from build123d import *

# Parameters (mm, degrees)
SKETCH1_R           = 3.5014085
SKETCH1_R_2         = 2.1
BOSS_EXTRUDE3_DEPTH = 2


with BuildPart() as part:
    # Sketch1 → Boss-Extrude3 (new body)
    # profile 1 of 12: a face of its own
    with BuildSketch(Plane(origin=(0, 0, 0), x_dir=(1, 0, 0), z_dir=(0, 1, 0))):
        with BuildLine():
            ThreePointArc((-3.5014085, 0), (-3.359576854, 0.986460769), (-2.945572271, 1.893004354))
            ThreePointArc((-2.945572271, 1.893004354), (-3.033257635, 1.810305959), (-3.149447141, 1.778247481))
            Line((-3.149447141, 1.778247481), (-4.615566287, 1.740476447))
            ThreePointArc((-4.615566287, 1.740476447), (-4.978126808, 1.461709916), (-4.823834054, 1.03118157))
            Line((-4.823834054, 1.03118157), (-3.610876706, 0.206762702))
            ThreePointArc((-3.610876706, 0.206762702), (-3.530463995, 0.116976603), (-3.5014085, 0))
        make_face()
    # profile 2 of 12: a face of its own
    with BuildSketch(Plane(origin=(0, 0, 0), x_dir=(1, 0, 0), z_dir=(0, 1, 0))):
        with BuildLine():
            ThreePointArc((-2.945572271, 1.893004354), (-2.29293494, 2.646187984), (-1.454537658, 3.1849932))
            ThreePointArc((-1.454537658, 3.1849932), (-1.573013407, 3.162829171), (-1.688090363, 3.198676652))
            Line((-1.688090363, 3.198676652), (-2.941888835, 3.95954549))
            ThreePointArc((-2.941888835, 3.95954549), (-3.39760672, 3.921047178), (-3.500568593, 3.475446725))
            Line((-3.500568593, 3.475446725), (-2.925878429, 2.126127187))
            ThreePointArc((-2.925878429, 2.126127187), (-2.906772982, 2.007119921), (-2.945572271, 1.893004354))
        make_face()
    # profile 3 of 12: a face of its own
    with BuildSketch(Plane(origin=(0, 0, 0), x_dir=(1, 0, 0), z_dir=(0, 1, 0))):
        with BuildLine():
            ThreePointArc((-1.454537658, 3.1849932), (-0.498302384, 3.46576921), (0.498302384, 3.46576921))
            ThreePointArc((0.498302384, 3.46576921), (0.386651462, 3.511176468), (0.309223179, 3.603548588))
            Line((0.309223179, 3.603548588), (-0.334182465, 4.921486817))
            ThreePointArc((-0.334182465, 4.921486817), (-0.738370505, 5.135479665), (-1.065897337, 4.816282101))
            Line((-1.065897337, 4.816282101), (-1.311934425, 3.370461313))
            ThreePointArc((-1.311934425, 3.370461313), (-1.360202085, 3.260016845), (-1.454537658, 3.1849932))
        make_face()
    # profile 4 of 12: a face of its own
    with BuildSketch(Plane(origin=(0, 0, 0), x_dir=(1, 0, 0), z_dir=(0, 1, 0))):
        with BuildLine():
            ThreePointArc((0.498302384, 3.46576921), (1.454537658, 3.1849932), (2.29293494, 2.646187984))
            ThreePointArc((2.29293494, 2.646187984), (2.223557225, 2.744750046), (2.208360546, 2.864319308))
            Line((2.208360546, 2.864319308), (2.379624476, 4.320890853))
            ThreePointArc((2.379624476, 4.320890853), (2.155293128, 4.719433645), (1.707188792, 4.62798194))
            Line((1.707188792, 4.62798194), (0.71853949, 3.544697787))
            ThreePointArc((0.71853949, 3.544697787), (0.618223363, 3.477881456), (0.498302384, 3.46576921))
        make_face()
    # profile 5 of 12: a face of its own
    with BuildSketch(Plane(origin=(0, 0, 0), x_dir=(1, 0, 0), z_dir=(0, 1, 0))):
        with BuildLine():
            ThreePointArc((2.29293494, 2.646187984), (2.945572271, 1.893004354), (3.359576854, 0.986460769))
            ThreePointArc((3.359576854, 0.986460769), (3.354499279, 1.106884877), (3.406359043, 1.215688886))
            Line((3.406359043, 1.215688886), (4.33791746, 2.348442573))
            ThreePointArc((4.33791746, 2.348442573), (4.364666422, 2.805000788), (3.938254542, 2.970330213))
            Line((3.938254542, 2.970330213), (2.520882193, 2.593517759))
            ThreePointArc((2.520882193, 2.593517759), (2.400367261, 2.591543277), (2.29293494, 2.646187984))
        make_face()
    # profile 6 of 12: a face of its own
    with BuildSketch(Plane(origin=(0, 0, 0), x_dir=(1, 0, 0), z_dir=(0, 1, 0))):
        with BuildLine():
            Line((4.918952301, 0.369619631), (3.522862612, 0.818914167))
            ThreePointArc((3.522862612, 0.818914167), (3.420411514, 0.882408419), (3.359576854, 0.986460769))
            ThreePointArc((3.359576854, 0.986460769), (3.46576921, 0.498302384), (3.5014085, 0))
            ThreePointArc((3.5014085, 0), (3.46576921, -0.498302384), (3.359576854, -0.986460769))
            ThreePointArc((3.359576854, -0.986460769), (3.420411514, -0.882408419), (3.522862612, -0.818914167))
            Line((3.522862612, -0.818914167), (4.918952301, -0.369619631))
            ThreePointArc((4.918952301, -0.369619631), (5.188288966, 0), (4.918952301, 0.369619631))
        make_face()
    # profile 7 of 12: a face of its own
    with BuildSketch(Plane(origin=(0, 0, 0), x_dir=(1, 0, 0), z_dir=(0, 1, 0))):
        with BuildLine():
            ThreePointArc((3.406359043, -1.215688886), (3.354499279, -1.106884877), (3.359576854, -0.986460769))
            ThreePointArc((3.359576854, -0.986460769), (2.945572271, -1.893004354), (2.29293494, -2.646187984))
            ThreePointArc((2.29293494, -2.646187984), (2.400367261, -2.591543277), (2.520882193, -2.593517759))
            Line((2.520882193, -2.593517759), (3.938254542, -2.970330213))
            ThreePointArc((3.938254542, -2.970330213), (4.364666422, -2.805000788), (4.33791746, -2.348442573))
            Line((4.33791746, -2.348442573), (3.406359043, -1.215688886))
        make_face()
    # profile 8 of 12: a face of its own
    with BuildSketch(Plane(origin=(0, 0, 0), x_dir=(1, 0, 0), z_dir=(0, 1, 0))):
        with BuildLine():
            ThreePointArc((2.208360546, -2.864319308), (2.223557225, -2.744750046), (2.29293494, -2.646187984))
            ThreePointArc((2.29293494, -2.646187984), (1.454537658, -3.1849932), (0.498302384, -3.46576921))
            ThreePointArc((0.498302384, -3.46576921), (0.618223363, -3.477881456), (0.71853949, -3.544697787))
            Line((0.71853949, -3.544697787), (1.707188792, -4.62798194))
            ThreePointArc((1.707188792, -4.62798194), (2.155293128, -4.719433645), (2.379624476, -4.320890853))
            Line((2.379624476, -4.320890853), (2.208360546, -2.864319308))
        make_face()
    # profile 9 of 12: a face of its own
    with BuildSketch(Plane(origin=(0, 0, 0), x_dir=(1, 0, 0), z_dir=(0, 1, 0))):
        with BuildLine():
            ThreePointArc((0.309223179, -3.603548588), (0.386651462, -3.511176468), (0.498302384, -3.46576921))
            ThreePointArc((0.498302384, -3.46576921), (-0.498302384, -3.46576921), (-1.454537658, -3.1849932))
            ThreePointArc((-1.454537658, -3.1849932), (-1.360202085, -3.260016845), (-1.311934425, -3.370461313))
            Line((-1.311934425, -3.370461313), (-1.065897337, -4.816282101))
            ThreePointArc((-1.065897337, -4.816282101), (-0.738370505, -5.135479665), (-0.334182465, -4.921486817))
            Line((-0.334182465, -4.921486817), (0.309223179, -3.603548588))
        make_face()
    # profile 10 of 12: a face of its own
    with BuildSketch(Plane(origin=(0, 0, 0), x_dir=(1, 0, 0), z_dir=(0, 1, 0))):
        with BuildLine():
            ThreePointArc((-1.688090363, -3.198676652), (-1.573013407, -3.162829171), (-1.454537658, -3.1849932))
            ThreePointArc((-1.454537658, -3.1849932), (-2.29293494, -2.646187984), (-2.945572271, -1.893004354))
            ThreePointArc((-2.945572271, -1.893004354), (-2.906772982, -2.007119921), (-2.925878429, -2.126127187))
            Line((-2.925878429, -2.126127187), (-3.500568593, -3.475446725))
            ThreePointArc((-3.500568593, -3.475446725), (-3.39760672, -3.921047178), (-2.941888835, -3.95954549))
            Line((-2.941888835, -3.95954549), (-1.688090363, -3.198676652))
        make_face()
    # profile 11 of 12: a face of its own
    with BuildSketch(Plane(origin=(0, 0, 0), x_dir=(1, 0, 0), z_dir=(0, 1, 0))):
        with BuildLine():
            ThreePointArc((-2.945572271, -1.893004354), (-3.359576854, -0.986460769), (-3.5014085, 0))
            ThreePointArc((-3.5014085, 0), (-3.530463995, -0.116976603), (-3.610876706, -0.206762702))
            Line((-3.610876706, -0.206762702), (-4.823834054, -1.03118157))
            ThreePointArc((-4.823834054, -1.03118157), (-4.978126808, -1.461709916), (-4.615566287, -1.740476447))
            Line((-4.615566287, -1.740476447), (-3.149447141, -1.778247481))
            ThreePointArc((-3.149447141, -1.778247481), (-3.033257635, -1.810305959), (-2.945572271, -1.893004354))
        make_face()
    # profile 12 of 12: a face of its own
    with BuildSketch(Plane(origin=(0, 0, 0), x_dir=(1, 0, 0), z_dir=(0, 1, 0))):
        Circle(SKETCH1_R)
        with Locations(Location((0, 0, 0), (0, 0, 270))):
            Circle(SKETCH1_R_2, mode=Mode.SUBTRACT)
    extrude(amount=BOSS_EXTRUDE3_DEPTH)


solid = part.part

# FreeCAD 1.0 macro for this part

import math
import FreeCAD as App
import Part
import Sketcher

V = App.Vector
Q = App.Units.Quantity

doc = App.newDocument("Part")
params = doc.addObject("Spreadsheet::Sheet", "Params")
for row, (alias, value) in enumerate([
    ("sketch1_diameter", "4.2 mm"),
    ("sketch1_radius", "0.25 mm"),
    ("pad1_length", "2 mm"),
], start=1):
    params.set(f"A{row}", alias)
    params.set(f"B{row}", "=" + value)
    params.setAlias(f"B{row}", alias)

body = doc.addObject("PartDesign::Body", "Body")

# Sketch on XZ plane
sketch1 = body.newObject("Sketcher::SketchObject", "Sketch")
sketch1.AttachmentSupport = (doc.getObject("XZ_Plane"), [""])
sketch1.MapMode = "FlatFace"
sketch1.addGeometry(Part.ArcOfCircle(Part.Circle(V(-3.16, -2.03, 0), V(0, 0, 1), 0.25), math.radians(33), math.radians(89)), False)
sketch1.addGeometry(Part.LineSegment(V(-3.15, -1.78, 0), V(-4.62, -1.74, 0)), False)
sketch1.addGeometry(Part.ArcOfCircle(Part.Circle(V(-4.61, -1.35, 0), V(0, 0, 1), 0.39), math.radians(124), math.radians(269)), False)
sketch1.addGeometry(Part.LineSegment(V(-4.82, -1.03, 0), V(-3.61, -0.21, 0)), False)
sketch1.addGeometry(Part.ArcOfCircle(Part.Circle(V(-3.75, 0, 0), V(0, 0, 1), 0.25), math.radians(-56), math.radians(0)), False)
sketch1.addGeometry(Part.ArcOfCircle(Part.Circle(V(-3.75, 0, 0), V(0, 0, 1), 0.25), math.radians(0), math.radians(56)), False)
sketch1.addGeometry(Part.LineSegment(V(-3.61, 0.21, 0), V(-4.82, 1.03, 0)), False)
sketch1.addGeometry(Part.ArcOfCircle(Part.Circle(V(-4.61, 1.35, 0), V(0, 0, 1), 0.39), math.radians(91), math.radians(236)), False)
sketch1.addGeometry(Part.LineSegment(V(-4.62, 1.74, 0), V(-3.15, 1.78, 0)), False)
sketch1.addGeometry(Part.ArcOfCircle(Part.Circle(V(-3.16, 2.03, 0), V(0, 0, 1), 0.25), math.radians(-89), math.radians(-33)), False)
sketch1.addGeometry(Part.ArcOfCircle(Part.Circle(V(-3.16, 2.03, 0), V(0, 0, 1), 0.25), math.radians(-33), math.radians(23)), False)
sketch1.addGeometry(Part.LineSegment(V(-2.93, 2.13, 0), V(-3.5, 3.48, 0)), False)
sketch1.addGeometry(Part.ArcOfCircle(Part.Circle(V(-3.14, 3.63, 0), V(0, 0, 1), 0.39), math.radians(59), math.radians(203)), False)
sketch1.addGeometry(Part.LineSegment(V(-2.94, 3.96, 0), V(-1.69, 3.2, 0)), False)
sketch1.addGeometry(Part.ArcOfCircle(Part.Circle(V(-1.56, 3.41, 0), V(0, 0, 1), 0.25), math.radians(-121), math.radians(-65)), False)
sketch1.addGeometry(Part.ArcOfCircle(Part.Circle(V(-1.56, 3.41, 0), V(0, 0, 1), 0.25), math.radians(-65), math.radians(-10)), False)
sketch1.addGeometry(Part.LineSegment(V(-1.31, 3.37, 0), V(-1.07, 4.82, 0)), False)
sketch1.addGeometry(Part.ArcOfCircle(Part.Circle(V(-0.68, 4.75, 0), V(0, 0, 1), 0.39), math.radians(26), math.radians(170)), False)
sketch1.addGeometry(Part.LineSegment(V(-0.33, 4.92, 0), V(0.31, 3.6, 0)), False)
sketch1.addGeometry(Part.ArcOfCircle(Part.Circle(V(0.53, 3.71, 0), V(0, 0, 1), 0.25), math.radians(-154), math.radians(-98)), False)
sketch1.addGeometry(Part.ArcOfCircle(Part.Circle(V(0.53, 3.71, 0), V(0, 0, 1), 0.25), math.radians(-98), math.radians(-42)), False)
sketch1.addGeometry(Part.LineSegment(V(0.72, 3.54, 0), V(1.71, 4.63, 0)), False)
sketch1.addGeometry(Part.ArcOfCircle(Part.Circle(V(1.99, 4.37, 0), V(0, 0, 1), 0.39), math.radians(-7), math.radians(138)), False)
sketch1.addGeometry(Part.LineSegment(V(2.38, 4.32, 0), V(2.21, 2.86, 0)), False)
sketch1.addGeometry(Part.ArcOfCircle(Part.Circle(V(2.46, 2.84, 0), V(0, 0, 1), 0.25), math.radians(173), math.radians(229)), False)
sketch1.addGeometry(Part.ArcOfCircle(Part.Circle(V(2.46, 2.84, 0), V(0, 0, 1), 0.25), math.radians(-131), math.radians(-75)), False)
sketch1.addGeometry(Part.LineSegment(V(2.52, 2.59, 0), V(3.94, 2.97, 0)), False)
sketch1.addGeometry(Part.ArcOfCircle(Part.Circle(V(4.04, 2.6, 0), V(0, 0, 1), 0.39), math.radians(-39), math.radians(105)), False)
sketch1.addGeometry(Part.LineSegment(V(4.34, 2.35, 0), V(3.41, 1.22, 0)), False)
sketch1.addGeometry(Part.ArcOfCircle(Part.Circle(V(3.6, 1.06, 0), V(0, 0, 1), 0.25), math.radians(141), math.radians(196)), False)
sketch1.addGeometry(Part.ArcOfCircle(Part.Circle(V(3.6, 1.06, 0), V(0, 0, 1), 0.25), math.radians(-164), math.radians(-108)), False)
sketch1.addGeometry(Part.LineSegment(V(3.52, 0.82, 0), V(4.92, 0.37, 0)), False)
sketch1.addGeometry(Part.ArcOfCircle(Part.Circle(V(4.8, 0, 0), V(0, 0, 1), 0.39), math.radians(-72), math.radians(72)), False)
sketch1.addGeometry(Part.LineSegment(V(4.92, -0.37, 0), V(3.52, -0.82, 0)), False)
sketch1.addGeometry(Part.ArcOfCircle(Part.Circle(V(3.6, -1.06, 0), V(0, 0, 1), 0.25), math.radians(108), math.radians(164)), False)
sketch1.addGeometry(Part.ArcOfCircle(Part.Circle(V(3.6, -1.06, 0), V(0, 0, 1), 0.25), math.radians(164), math.radians(219)), False)
sketch1.addGeometry(Part.LineSegment(V(3.41, -1.22, 0), V(4.34, -2.35, 0)), False)
sketch1.addGeometry(Part.ArcOfCircle(Part.Circle(V(4.04, -2.6, 0), V(0, 0, 1), 0.39), math.radians(-105), math.radians(39)), False)
sketch1.addGeometry(Part.LineSegment(V(3.94, -2.97, 0), V(2.52, -2.59, 0)), False)
sketch1.addGeometry(Part.ArcOfCircle(Part.Circle(V(2.46, -2.84, 0), V(0, 0, 1), 0.25), math.radians(75), math.radians(131)), False)
sketch1.addGeometry(Part.ArcOfCircle(Part.Circle(V(2.46, -2.84, 0), V(0, 0, 1), 0.25), math.radians(131), math.radians(187)), False)
sketch1.addGeometry(Part.LineSegment(V(2.21, -2.86, 0), V(2.38, -4.32, 0)), False)
sketch1.addGeometry(Part.ArcOfCircle(Part.Circle(V(1.99, -4.37, 0), V(0, 0, 1), 0.39), math.radians(-138), math.radians(7)), False)
sketch1.addGeometry(Part.LineSegment(V(1.71, -4.63, 0), V(0.72, -3.54, 0)), False)
sketch1.addGeometry(Part.ArcOfCircle(Part.Circle(V(0.53, -3.71, 0), V(0, 0, 1), 0.25), math.radians(42), math.radians(98)), False)
sketch1.addGeometry(Part.ArcOfCircle(Part.Circle(V(0.53, -3.71, 0), V(0, 0, 1), 0.25), math.radians(98), math.radians(154)), False)
sketch1.addGeometry(Part.LineSegment(V(0.31, -3.6, 0), V(-0.33, -4.92, 0)), False)
sketch1.addGeometry(Part.ArcOfCircle(Part.Circle(V(-0.68, -4.75, 0), V(0, 0, 1), 0.39), math.radians(-170), math.radians(-26)), False)
sketch1.addGeometry(Part.LineSegment(V(-1.07, -4.82, 0), V(-1.31, -3.37, 0)), False)
sketch1.addGeometry(Part.ArcOfCircle(Part.Circle(V(-1.56, -3.41, 0), V(0, 0, 1), 0.25), math.radians(10), math.radians(65)), False)
sketch1.addGeometry(Part.ArcOfCircle(Part.Circle(V(-1.56, -3.41, 0), V(0, 0, 1), 0.25), math.radians(65), math.radians(121)), False)
sketch1.addGeometry(Part.LineSegment(V(-1.69, -3.2, 0), V(-2.94, -3.96, 0)), False)
sketch1.addGeometry(Part.ArcOfCircle(Part.Circle(V(-3.14, -3.63, 0), V(0, 0, 1), 0.39), math.radians(157), math.radians(301)), False)
sketch1.addGeometry(Part.LineSegment(V(-3.5, -3.48, 0), V(-2.93, -2.13, 0)), False)
sketch1.addGeometry(Part.ArcOfCircle(Part.Circle(V(-3.16, -2.03, 0), V(0, 0, 1), 0.25), math.radians(-23), math.radians(33)), False)
sketch1.addGeometry(Part.Circle(V(0, 0, 0), V(0, 0, 1), 2.1), False)
sketch1.addConstraint(Sketcher.Constraint("Tangent", 0, 2, 1, 1))
sketch1.addConstraint(Sketcher.Constraint("Tangent", 1, 2, 2, 2))
sketch1.addConstraint(Sketcher.Constraint("Tangent", 2, 1, 3, 1))
sketch1.addConstraint(Sketcher.Constraint("Tangent", 3, 2, 4, 1))
sketch1.addConstraint(Sketcher.Constraint("Tangent", 4, 2, 5, 1))
sketch1.addConstraint(Sketcher.Constraint("Tangent", 5, 2, 6, 1))
sketch1.addConstraint(Sketcher.Constraint("Tangent", 6, 2, 7, 2))
sketch1.addConstraint(Sketcher.Constraint("Tangent", 7, 1, 8, 1))
sketch1.addConstraint(Sketcher.Constraint("Tangent", 8, 2, 9, 1))
sketch1.addConstraint(Sketcher.Constraint("Tangent", 9, 2, 10, 1))
sketch1.addConstraint(Sketcher.Constraint("Tangent", 10, 2, 11, 1))
sketch1.addConstraint(Sketcher.Constraint("Tangent", 11, 2, 12, 2))
sketch1.addConstraint(Sketcher.Constraint("Tangent", 12, 1, 13, 1))
sketch1.addConstraint(Sketcher.Constraint("Tangent", 13, 2, 14, 1))
sketch1.addConstraint(Sketcher.Constraint("Tangent", 14, 2, 15, 1))
sketch1.addConstraint(Sketcher.Constraint("Tangent", 15, 2, 16, 1))
sketch1.addConstraint(Sketcher.Constraint("Tangent", 16, 2, 17, 2))
sketch1.addConstraint(Sketcher.Constraint("Tangent", 17, 1, 18, 1))
sketch1.addConstraint(Sketcher.Constraint("Tangent", 18, 2, 19, 1))
sketch1.addConstraint(Sketcher.Constraint("Tangent", 19, 2, 20, 1))
sketch1.addConstraint(Sketcher.Constraint("Tangent", 20, 2, 21, 1))
sketch1.addConstraint(Sketcher.Constraint("Tangent", 21, 2, 22, 2))
sketch1.addConstraint(Sketcher.Constraint("Tangent", 22, 1, 23, 1))
sketch1.addConstraint(Sketcher.Constraint("Tangent", 23, 2, 24, 1))
sketch1.addConstraint(Sketcher.Constraint("Tangent", 24, 2, 25, 1))
sketch1.addConstraint(Sketcher.Constraint("Tangent", 25, 2, 26, 1))
sketch1.addConstraint(Sketcher.Constraint("Tangent", 26, 2, 27, 2))
sketch1.addConstraint(Sketcher.Constraint("Tangent", 27, 1, 28, 1))
sketch1.addConstraint(Sketcher.Constraint("Tangent", 28, 2, 29, 1))
sketch1.addConstraint(Sketcher.Constraint("Tangent", 29, 2, 30, 1))
sketch1.addConstraint(Sketcher.Constraint("Tangent", 30, 2, 31, 1))
sketch1.addConstraint(Sketcher.Constraint("Tangent", 31, 2, 32, 2))
sketch1.addConstraint(Sketcher.Constraint("Tangent", 32, 1, 33, 1))
sketch1.addConstraint(Sketcher.Constraint("Tangent", 33, 2, 34, 1))
sketch1.addConstraint(Sketcher.Constraint("Tangent", 34, 2, 35, 1))
sketch1.addConstraint(Sketcher.Constraint("Tangent", 35, 2, 36, 1))
sketch1.addConstraint(Sketcher.Constraint("Tangent", 36, 2, 37, 2))
sketch1.addConstraint(Sketcher.Constraint("Tangent", 37, 1, 38, 1))
sketch1.addConstraint(Sketcher.Constraint("Tangent", 38, 2, 39, 1))
sketch1.addConstraint(Sketcher.Constraint("Tangent", 39, 2, 40, 1))
sketch1.addConstraint(Sketcher.Constraint("Tangent", 40, 2, 41, 1))
sketch1.addConstraint(Sketcher.Constraint("Tangent", 41, 2, 42, 2))
sketch1.addConstraint(Sketcher.Constraint("Tangent", 42, 1, 43, 1))
sketch1.addConstraint(Sketcher.Constraint("Tangent", 43, 2, 44, 1))
sketch1.addConstraint(Sketcher.Constraint("Tangent", 44, 2, 45, 1))
sketch1.addConstraint(Sketcher.Constraint("Tangent", 45, 2, 46, 1))
sketch1.addConstraint(Sketcher.Constraint("Tangent", 46, 2, 47, 2))
sketch1.addConstraint(Sketcher.Constraint("Tangent", 47, 1, 48, 1))
sketch1.addConstraint(Sketcher.Constraint("Tangent", 48, 2, 49, 1))
sketch1.addConstraint(Sketcher.Constraint("Tangent", 49, 2, 50, 1))
sketch1.addConstraint(Sketcher.Constraint("Tangent", 50, 2, 51, 1))
sketch1.addConstraint(Sketcher.Constraint("Tangent", 51, 2, 52, 2))
sketch1.addConstraint(Sketcher.Constraint("Tangent", 52, 1, 53, 1))
sketch1.addConstraint(Sketcher.Constraint("Tangent", 53, 2, 54, 1))
sketch1.addConstraint(Sketcher.Constraint("Tangent", 54, 2, 0, 1))
sketch1.addConstraint(Sketcher.Constraint("Coincident", 55, 3, -1, 1))
sketch1.addConstraint(Sketcher.Constraint("Equal", 0, 4))
sketch1.addConstraint(Sketcher.Constraint("Equal", 4, 5))
sketch1.addConstraint(Sketcher.Constraint("Equal", 2, 7))
sketch1.addConstraint(Sketcher.Constraint("Equal", 5, 9))
sketch1.addConstraint(Sketcher.Constraint("Equal", 9, 10))
sketch1.addConstraint(Sketcher.Constraint("Equal", 7, 12))
sketch1.addConstraint(Sketcher.Constraint("Equal", 10, 14))
sketch1.addConstraint(Sketcher.Constraint("Equal", 14, 15))
sketch1.addConstraint(Sketcher.Constraint("Equal", 12, 17))
sketch1.addConstraint(Sketcher.Constraint("Equal", 15, 19))
sketch1.addConstraint(Sketcher.Constraint("Equal", 19, 20))
sketch1.addConstraint(Sketcher.Constraint("Equal", 17, 22))
sketch1.addConstraint(Sketcher.Constraint("Equal", 20, 24))
sketch1.addConstraint(Sketcher.Constraint("Equal", 24, 25))
sketch1.addConstraint(Sketcher.Constraint("Equal", 22, 27))
sketch1.addConstraint(Sketcher.Constraint("Equal", 25, 29))
sketch1.addConstraint(Sketcher.Constraint("Equal", 29, 30))
sketch1.addConstraint(Sketcher.Constraint("Equal", 27, 32))
sketch1.addConstraint(Sketcher.Constraint("Equal", 30, 34))
sketch1.addConstraint(Sketcher.Constraint("Equal", 34, 35))
sketch1.addConstraint(Sketcher.Constraint("Equal", 32, 37))
sketch1.addConstraint(Sketcher.Constraint("Equal", 35, 39))
sketch1.addConstraint(Sketcher.Constraint("Equal", 39, 40))
sketch1.addConstraint(Sketcher.Constraint("Equal", 37, 42))
sketch1.addConstraint(Sketcher.Constraint("Equal", 40, 44))
sketch1.addConstraint(Sketcher.Constraint("Equal", 44, 45))
sketch1.addConstraint(Sketcher.Constraint("Equal", 42, 47))
sketch1.addConstraint(Sketcher.Constraint("Equal", 45, 49))
sketch1.addConstraint(Sketcher.Constraint("Equal", 49, 50))
sketch1.addConstraint(Sketcher.Constraint("Equal", 47, 52))
sketch1.addConstraint(Sketcher.Constraint("Equal", 50, 54))
sketch1.addConstraint(Sketcher.Constraint("Symmetric", 2, 3, 7, 3, -1))
sketch1.addConstraint(Sketcher.Constraint("Symmetric", 0, 3, 9, 3, -1))
sketch1.addConstraint(Sketcher.Constraint("Symmetric", 29, 3, 34, 3, -1))
sketch1.addConstraint(Sketcher.Constraint("Symmetric", 27, 3, 37, 3, -1))
sketch1.addConstraint(Sketcher.Constraint("Symmetric", 24, 3, 39, 3, -1))
sketch1.addConstraint(Sketcher.Constraint("Symmetric", 22, 3, 42, 3, -1))
sketch1.addConstraint(Sketcher.Constraint("Symmetric", 19, 3, 44, 3, -1))
sketch1.addConstraint(Sketcher.Constraint("Symmetric", 17, 3, 47, 3, -1))
sketch1.addConstraint(Sketcher.Constraint("Symmetric", 14, 3, 49, 3, -1))
sketch1.addConstraint(Sketcher.Constraint("Symmetric", 12, 3, 52, 3, -1))
sketch1.addConstraint(Sketcher.Constraint("PointOnObject", 4, 3, -1))
sketch1.addConstraint(Sketcher.Constraint("PointOnObject", 32, 3, -1))
sketch1.addConstraint(Sketcher.Constraint("PointOnObject", 4, 2, -1))
sketch1.addConstraint(Sketcher.Constraint("Vertical", 29, 2, 34, 2))
sketch1.addConstraint(Sketcher.Constraint("Vertical", 24, 2, 39, 2))
sketch1.addConstraint(Sketcher.Constraint("Vertical", 19, 2, 44, 2))
sketch1.addConstraint(Sketcher.Constraint("Vertical", 14, 2, 49, 2))
sketch1.addConstraint(Sketcher.Constraint("Vertical", 9, 2, 54, 2))
sketch1.addConstraint(Sketcher.Constraint("Equal", 1, 3))
sketch1.addConstraint(Sketcher.Constraint("Equal", 8, 11))
sketch1.addConstraint(Sketcher.Constraint("Equal", 11, 13))
sketch1.addConstraint(Sketcher.Constraint("Equal", 13, 16))
sketch1.addConstraint(Sketcher.Constraint("Equal", 16, 18))
sketch1.addConstraint(Sketcher.Constraint("Equal", 18, 21))
sketch1.addConstraint(Sketcher.Constraint("Equal", 21, 23))
sketch1.addConstraint(Sketcher.Constraint("Equal", 23, 26))
sketch1.addConstraint(Sketcher.Constraint("Equal", 26, 28))
sketch1.addConstraint(Sketcher.Constraint("Equal", 28, 31))
sketch1.addConstraint(Sketcher.Constraint("Diameter", 55, Q("4.2 mm")))
sketch1.addConstraint(Sketcher.Constraint("Radius", 0, Q("0.25 mm")))
sketch1.addConstraint(Sketcher.Constraint("DistanceX", -1, 1, 32, 3, Q("4.8 mm")))
sketch1.addConstraint(Sketcher.Constraint("Radius", 2, Q("0.388289 mm")))
sketch1.addConstraint(Sketcher.Constraint("DistanceY", -1, 1, 14, 3, Q("3.412401 mm")))
sketch1.addConstraint(Sketcher.Constraint("DistanceX", 4, 3, -1, 1, Q("3.751409 mm")))
sketch1.addConstraint(Sketcher.Constraint("DistanceX", 12, 3, -1, 1, Q("3.143332 mm")))
sketch1.addConstraint(Sketcher.Constraint("DistanceX", 14, 3, -1, 1, Q("1.558391 mm")))
sketch1.addConstraint(Sketcher.Constraint("DistanceX", 17, 3, -1, 1, Q("0.683111 mm")))
sketch1.addConstraint(Sketcher.Constraint("DistanceX", -1, 1, 19, 3, Q("0.533881 mm")))
sketch1.addConstraint(Sketcher.Constraint("DistanceX", -1, 1, 24, 3, Q("2.45665 mm")))
sketch1.addConstraint(Sketcher.Constraint("DistanceX", -1, 1, 29, 3, Q("3.59945 mm")))
sketch1.addConstraint(Sketcher.Constraint("DistanceY", 2, 1, -1, 1, Q("1.031182 mm")))
sketch1.addConstraint(Sketcher.Constraint("DistanceX", 10, 2, -1, 1, Q("2.925878 mm")))
sketch1.addConstraint(Sketcher.Constraint("DistanceY", -1, 1, 19, 2, Q("3.465769 mm")))
sketch1.addConstraint(Sketcher.Constraint("DistanceX", -1, 1, 20, 2, Q("0.718539 mm")))
sketch1.addConstraint(Sketcher.Constraint("DistanceY", -1, 1, 29, 2, Q("0.986461 mm")))
sketch1.addConstraint(Sketcher.Constraint("DistanceX", 9, 2, -1, 1, Q("2.945572 mm")))
sketch1.addConstraint(Sketcher.Constraint("DistanceX", 14, 2, -1, 1, Q("1.454538 mm")))
sketch1.addConstraint(Sketcher.Constraint("DistanceX", -1, 1, 24, 2, Q("2.292935 mm")))
sketch1.setExpression("Constraints[115]", "Params.sketch1_diameter")
sketch1.setExpression("Constraints[116]", "Params.sketch1_radius")
pad1 = body.newObject("PartDesign::Pad", "Pad")
pad1.Profile = sketch1
pad1.setExpression("Length", "Params.pad1_length")
pad1.Reversed = True

doc.recompute()
